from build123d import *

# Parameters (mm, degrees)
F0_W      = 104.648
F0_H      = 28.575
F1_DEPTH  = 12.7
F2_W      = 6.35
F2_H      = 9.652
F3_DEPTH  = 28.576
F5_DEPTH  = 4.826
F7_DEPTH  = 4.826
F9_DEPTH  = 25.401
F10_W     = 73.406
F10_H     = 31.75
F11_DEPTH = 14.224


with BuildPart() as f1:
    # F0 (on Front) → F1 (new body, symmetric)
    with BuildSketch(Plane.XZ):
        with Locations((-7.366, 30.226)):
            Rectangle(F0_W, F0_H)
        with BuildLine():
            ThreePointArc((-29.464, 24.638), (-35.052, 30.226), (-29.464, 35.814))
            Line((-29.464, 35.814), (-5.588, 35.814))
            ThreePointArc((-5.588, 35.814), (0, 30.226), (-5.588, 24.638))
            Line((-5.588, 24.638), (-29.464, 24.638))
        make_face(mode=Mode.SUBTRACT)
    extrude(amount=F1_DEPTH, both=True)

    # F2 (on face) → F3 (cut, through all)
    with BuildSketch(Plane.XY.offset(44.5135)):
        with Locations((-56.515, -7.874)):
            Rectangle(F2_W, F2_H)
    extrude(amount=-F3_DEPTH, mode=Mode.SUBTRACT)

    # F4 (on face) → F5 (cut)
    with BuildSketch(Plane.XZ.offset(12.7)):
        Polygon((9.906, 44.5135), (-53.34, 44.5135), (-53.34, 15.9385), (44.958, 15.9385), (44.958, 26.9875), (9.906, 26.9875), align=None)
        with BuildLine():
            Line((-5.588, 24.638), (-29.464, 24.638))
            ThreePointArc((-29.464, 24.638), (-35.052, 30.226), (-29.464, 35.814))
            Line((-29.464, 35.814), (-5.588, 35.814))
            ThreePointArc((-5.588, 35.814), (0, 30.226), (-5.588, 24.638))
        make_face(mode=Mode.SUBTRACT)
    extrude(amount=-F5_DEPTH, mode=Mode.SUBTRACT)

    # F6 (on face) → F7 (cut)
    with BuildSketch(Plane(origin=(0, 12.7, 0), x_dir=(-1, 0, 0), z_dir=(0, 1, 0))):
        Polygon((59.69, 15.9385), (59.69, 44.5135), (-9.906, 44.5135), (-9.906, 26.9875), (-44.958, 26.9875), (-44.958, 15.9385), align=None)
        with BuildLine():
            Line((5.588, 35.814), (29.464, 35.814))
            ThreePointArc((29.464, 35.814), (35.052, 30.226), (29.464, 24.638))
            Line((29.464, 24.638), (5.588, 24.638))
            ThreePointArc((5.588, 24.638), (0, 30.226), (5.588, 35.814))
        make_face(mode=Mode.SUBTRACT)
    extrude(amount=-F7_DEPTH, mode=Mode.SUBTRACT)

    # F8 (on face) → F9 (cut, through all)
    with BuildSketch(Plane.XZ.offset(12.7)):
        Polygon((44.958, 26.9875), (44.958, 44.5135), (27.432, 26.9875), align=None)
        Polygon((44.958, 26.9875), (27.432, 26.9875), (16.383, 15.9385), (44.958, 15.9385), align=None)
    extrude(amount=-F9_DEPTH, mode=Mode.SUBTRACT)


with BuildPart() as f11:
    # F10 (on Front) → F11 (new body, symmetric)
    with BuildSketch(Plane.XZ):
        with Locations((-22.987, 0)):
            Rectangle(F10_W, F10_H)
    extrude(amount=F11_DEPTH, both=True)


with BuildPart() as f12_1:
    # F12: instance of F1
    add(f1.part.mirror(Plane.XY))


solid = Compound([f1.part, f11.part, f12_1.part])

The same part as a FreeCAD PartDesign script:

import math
import FreeCAD as App
import Part
import Sketcher

V = App.Vector
Q = App.Units.Quantity


def add_polygon(sketch, points):
    """Adds a closed chain of lines whose ends are joined by coincident constraints."""
    first, n = sketch.GeometryCount, len(points)
    for a, b in zip(points, points[1:] + points[:1]):
        sketch.addGeometry(Part.LineSegment(App.Vector(*a, 0), App.Vector(*b, 0)), False)
    for i in range(n):
        sketch.addConstraint(Sketcher.Constraint("Coincident", first + i, 2, first + (i + 1) % n, 1))

doc = App.newDocument("Part")
body = doc.addObject("PartDesign::Body", "Body")

sketch1 = doc.addObject("Sketcher::SketchObject", "Sketch")
body.addObject(sketch1)
sketch1.AttachmentSupport = (doc.XZ_Plane, [""])
sketch1.MapMode = "FlatFace"
add_polygon(sketch1, [(-60, 45), (-60, 16), (45, 16), (45, 45)])
sketch1.addGeometry(Part.LineSegment(V(-6, 25, 0), V(-29, 25, 0)), False)
sketch1.addGeometry(Part.ArcOfCircle(Part.Circle(V(-29, 30, 0), V(0, 0, 1), 6), math.radians(90), math.radians(270)), False)
sketch1.addGeometry(Part.LineSegment(V(-29, 36, 0), V(-6, 36, 0)), False)
sketch1.addGeometry(Part.ArcOfCircle(Part.Circle(V(-6, 30, 0), V(0, 0, 1), 6), math.radians(-90), math.radians(90)), False)
sketch1.addConstraint([
    Sketcher.Constraint("Tangent", 4, 2, 5, 2),
    Sketcher.Constraint("Tangent", 5, 1, 6, 1),
    Sketcher.Constraint("Tangent", 6, 2, 7, 2),
    Sketcher.Constraint("Tangent", 7, 1, 4, 1),
    Sketcher.Constraint("Vertical", 0),
    Sketcher.Constraint("Horizontal", 1),
    Sketcher.Constraint("Vertical", 2),
    Sketcher.Constraint("Horizontal", 3),
    Sketcher.Constraint("Horizontal", 4),
    Sketcher.Constraint("Horizontal", 6),
    Sketcher.Constraint("Radius", 5, Q("0.22 in")),
    Sketcher.Constraint("DistanceX", 1, 1, 1, 2, Q("4.12 in")),
    Sketcher.Constraint("DistanceX", 4, 2, 4, 1, Q("0.94 in")),
    Sketcher.Constraint("DistanceY", 0, 2, 0, 1, Q("1.125 in")),
    Sketcher.Constraint("DistanceX", 5, 3, -1, 1, Q("1.16 in")),
    Sketcher.Constraint("DistanceY", -1, 1, 5, 3, Q("1.19 in")),
    Sketcher.Constraint("DistanceX", 0, 2, -1, 1, Q("2.35 in")),
    Sketcher.Constraint("DistanceY", 0, 2, 5, 3, Q("0.5625 in")),
])
pad1 = doc.addObject("PartDesign::Pad", "Pad")
body.addObject(pad1)
pad1.Profile = sketch1
pad1.Length = Q("1 in")
pad1.Midplane = True

sketch2 = doc.addObject("Sketcher::SketchObject", "Sketch001")
body.addObject(sketch2)
sketch2.AttachmentSupport = (doc.XY_Plane, [""])
sketch2.MapMode = "FlatFace"
sketch2.AttachmentOffset = App.Placement(V(0, 0, 1.7525 * 25.4), App.Rotation())
add_polygon(sketch2, [(-60, -3), (-60, -13), (-53, -13), (-53, -3)])
sketch2.addConstraint([
    Sketcher.Constraint("Vertical", 0),
    Sketcher.Constraint("Horizontal", 1),
    Sketcher.Constraint("Vertical", 2),
    Sketcher.Constraint("Horizontal", 3),
    Sketcher.Constraint("DistanceX", 1, 1, 1, 2, Q("0.25 in")),
    Sketcher.Constraint("DistanceY", 0, 2, 0, 1, Q("0.38 in")),
    Sketcher.Constraint("DistanceY", 0, 2, -1, 1, Q("0.5 in")),
    Sketcher.Constraint("DistanceX", 1, 2, -1, 1, Q("2.1 in")),
])
pocket1 = doc.addObject("PartDesign::Pocket", "Pocket")
body.addObject(pocket1)
pocket1.Profile = sketch2
pocket1.Type = "ThroughAll"

sketch3 = doc.addObject("Sketcher::SketchObject", "Sketch002")
body.addObject(sketch3)
sketch3.AttachmentSupport = (doc.XZ_Plane, [""])
sketch3.MapMode = "FlatFace"
sketch3.AttachmentOffset = App.Placement(V(0, 0, 0.5 * 25.4), App.Rotation())
add_polygon(sketch3, [(10, 45), (-53, 45), (-53, 16), (45, 16), (45, 27), (10, 27)])
sketch3.addGeometry(Part.ArcOfCircle(Part.Circle(V(-6, 30, 0), V(0, 0, 1), 6), math.radians(-90), math.radians(90)), False)
sketch3.addGeometry(Part.LineSegment(V(-6, 25, 0), V(-29, 25, 0)), False)
sketch3.addGeometry(Part.ArcOfCircle(Part.Circle(V(-29, 30, 0), V(0, 0, 1), 6), math.radians(90), math.radians(270)), False)
sketch3.addGeometry(Part.LineSegment(V(-29, 36, 0), V(-6, 36, 0)), False)
sketch3.addConstraint([
    Sketcher.Constraint("Tangent", 6, 1, 7, 1),
    Sketcher.Constraint("Tangent", 7, 2, 8, 2),
    Sketcher.Constraint("Tangent", 8, 1, 9, 1),
    Sketcher.Constraint("Tangent", 9, 2, 6, 2),
    Sketcher.Constraint("Horizontal", 0),
    Sketcher.Constraint("Vertical", 1),
    Sketcher.Constraint("Horizontal", 2),
    Sketcher.Constraint("Vertical", 3),
    Sketcher.Constraint("Horizontal", 4),
    Sketcher.Constraint("Vertical", 5),
    Sketcher.Constraint("Horizontal", 7),
    Sketcher.Constraint("Horizontal", 9),
    Sketcher.Constraint("Radius", 6, Q("0.22 in")),
    Sketcher.Constraint("DistanceX", 0, 2, 0, 1, Q("2.49 in")),
    Sketcher.Constraint("DistanceX", 2, 1, 2, 2, Q("3.87 in")),
    Sketcher.Constraint("DistanceX", 7, 2, 7, 1, Q("0.94 in")),
    Sketcher.Constraint("DistanceY", 5, 1, 5, 2, Q("0.69 in")),
    Sketcher.Constraint("DistanceX", 0, 2, -1, 1, Q("2.1 in")),
    Sketcher.Constraint("DistanceY", 1, 2, 1, 1, Q("1.125 in")),
    Sketcher.Constraint("DistanceX", 6, 3, -1, 1, Q("0.22 in")),
    Sketcher.Constraint("DistanceY", -1, 1, 6, 3, Q("1.19 in")),
    Sketcher.Constraint("DistanceY", -1, 1, 3, 2, Q("1.0625 in")),
])
pocket2 = doc.addObject("PartDesign::Pocket", "Pocket001")
body.addObject(pocket2)
pocket2.Profile = sketch3
pocket2.Length = Q("0.19 in")

sketch4 = doc.addObject("Sketcher::SketchObject", "Sketch003")
body.addObject(sketch4)
sketch4.AttachmentSupport = (doc.XZ_Plane, [""])
sketch4.MapMode = "FlatFace"
sketch4.AttachmentOffset = App.Placement(V(0, 0, -0.5 * 25.4), App.Rotation())
add_polygon(sketch4, [(-60, 16), (-60, 45), (10, 45), (10, 27), (45, 27), (45, 16)])
sketch4.addGeometry(Part.ArcOfCircle(Part.Circle(V(-6, 30, 0), V(0, 0, 1), 6), math.radians(-90), math.radians(90)), False)
sketch4.addGeometry(Part.LineSegment(V(-6, 36, 0), V(-29, 36, 0)), False)
sketch4.addGeometry(Part.ArcOfCircle(Part.Circle(V(-29, 30, 0), V(0, 0, 1), 6), math.radians(90), math.radians(270)), False)
sketch4.addGeometry(Part.LineSegment(V(-29, 25, 0), V(-6, 25, 0)), False)
sketch4.addConstraint([
    Sketcher.Constraint("Tangent", 6, 2, 7, 1),
    Sketcher.Constraint("Tangent", 7, 2, 8, 1),
    Sketcher.Constraint("Tangent", 8, 2, 9, 1),
    Sketcher.Constraint("Tangent", 9, 2, 6, 1),
    Sketcher.Constraint("Vertical", 0),
    Sketcher.Constraint("Horizontal", 1),
    Sketcher.Constraint("Vertical", 2),
    Sketcher.Constraint("Horizontal", 3),
    Sketcher.Constraint("Vertical", 4),
    Sketcher.Constraint("Horizontal", 5),
    Sketcher.Constraint("Horizontal", 7),
    Sketcher.Constraint("Horizontal", 9),
    Sketcher.Constraint("Radius", 6, Q("0.22 in")),
    Sketcher.Constraint("DistanceX", 1, 1, 1, 2, Q("2.74 in")),
    Sketcher.Constraint("DistanceX", 3, 1, 3, 2, Q("1.38 in")),
    Sketcher.Constraint("DistanceX", 7, 2, 7, 1, Q("0.94 in")),
    Sketcher.Constraint("DistanceY", 2, 2, 2, 1, Q("0.69 in")),
    Sketcher.Constraint("DistanceY", 0, 1, 0, 2, Q("1.125 in")),
    Sketcher.Constraint("DistanceX", 6, 3, -1, 1, Q("0.22 in")),
    Sketcher.Constraint("DistanceY", -1, 1, 6, 3, Q("1.19 in")),
    Sketcher.Constraint("DistanceX", 0, 2, -1, 1, Q("2.35 in")),
    Sketcher.Constraint("DistanceY", -1, 1, 2, 2, Q("1.0625 in")),
])
pocket3 = doc.addObject("PartDesign::Pocket", "Pocket002")
body.addObject(pocket3)
pocket3.Profile = sketch4
pocket3.Length = Q("0.19 in")
pocket3.Reversed = True

sketch5 = doc.addObject("Sketcher::SketchObject", "Sketch004")
body.addObject(sketch5)
sketch5.AttachmentSupport = (doc.XZ_Plane, [""])
sketch5.MapMode = "FlatFace"
sketch5.AttachmentOffset = App.Placement(V(0, 0, 0.5 * 25.4), App.Rotation())
add_polygon(sketch5, [(45, 45), (16, 16), (45, 16)])
sketch5.addConstraint([
    Sketcher.Constraint("Horizontal", 1),
    Sketcher.Constraint("Vertical", 2),
    Sketcher.Constraint("Equal", 1, 2),
    Sketcher.Constraint("DistanceX", 1, 1, 1, 2, Q("1.125 in")),
    Sketcher.Constraint("DistanceX", -1, 1, 1, 2, Q("1.77 in")),
    Sketcher.Constraint("DistanceY", -1, 1, 0, 2, Q("0.6275 in")),
])
pocket4 = doc.addObject("PartDesign::Pocket", "Pocket003")
body.addObject(pocket4)
pocket4.Profile = sketch5
pocket4.Type = "ThroughAll"
body2 = doc.addObject("PartDesign::Body", "Body001")

sketch6 = doc.addObject("Sketcher::SketchObject", "Sketch005")
body2.addObject(sketch6)
sketch6.AttachmentSupport = (doc.getObject("XZ_Plane001"), [""])
sketch6.MapMode = "FlatFace"
add_polygon(sketch6, [(-60, 16), (-60, -16), (14, -16), (14, 16)])
sketch6.addConstraint([
    Sketcher.Constraint("Vertical", 0),
    Sketcher.Constraint("Horizontal", 1),
    Sketcher.Constraint("Vertical", 2),
    Sketcher.Constraint("Horizontal", 3),
    Sketcher.Constraint("DistanceX", 1, 1, 1, 2, Q("2.89 in")),
    Sketcher.Constraint("DistanceY", 0, 2, 0, 1, Q("1.25 in")),
    Sketcher.Constraint("DistanceX", 0, 2, -1, 1, Q("2.35 in")),
    Sketcher.Constraint("DistanceY", 0, 2, -1, 1, Q("0.625 in")),
])
pad2 = doc.addObject("PartDesign::Pad", "Pad001")
body2.addObject(pad2)
pad2.Profile = sketch6
pad2.Length = Q("1.12 in")
pad2.Midplane = True
body3 = doc.addObject("PartDesign::Body", "Body002")
doc.recompute()

mirroring = doc.addObject("Part::Mirroring", "Mirroring")
mirroring.Source = body
mirroring.Base = V(0, 0, 0)
mirroring.Normal = V(0, 0, 1)
body3.BaseFeature = mirroring
doc.recompute()
mirroring.Visibility = False

doc.recompute()
